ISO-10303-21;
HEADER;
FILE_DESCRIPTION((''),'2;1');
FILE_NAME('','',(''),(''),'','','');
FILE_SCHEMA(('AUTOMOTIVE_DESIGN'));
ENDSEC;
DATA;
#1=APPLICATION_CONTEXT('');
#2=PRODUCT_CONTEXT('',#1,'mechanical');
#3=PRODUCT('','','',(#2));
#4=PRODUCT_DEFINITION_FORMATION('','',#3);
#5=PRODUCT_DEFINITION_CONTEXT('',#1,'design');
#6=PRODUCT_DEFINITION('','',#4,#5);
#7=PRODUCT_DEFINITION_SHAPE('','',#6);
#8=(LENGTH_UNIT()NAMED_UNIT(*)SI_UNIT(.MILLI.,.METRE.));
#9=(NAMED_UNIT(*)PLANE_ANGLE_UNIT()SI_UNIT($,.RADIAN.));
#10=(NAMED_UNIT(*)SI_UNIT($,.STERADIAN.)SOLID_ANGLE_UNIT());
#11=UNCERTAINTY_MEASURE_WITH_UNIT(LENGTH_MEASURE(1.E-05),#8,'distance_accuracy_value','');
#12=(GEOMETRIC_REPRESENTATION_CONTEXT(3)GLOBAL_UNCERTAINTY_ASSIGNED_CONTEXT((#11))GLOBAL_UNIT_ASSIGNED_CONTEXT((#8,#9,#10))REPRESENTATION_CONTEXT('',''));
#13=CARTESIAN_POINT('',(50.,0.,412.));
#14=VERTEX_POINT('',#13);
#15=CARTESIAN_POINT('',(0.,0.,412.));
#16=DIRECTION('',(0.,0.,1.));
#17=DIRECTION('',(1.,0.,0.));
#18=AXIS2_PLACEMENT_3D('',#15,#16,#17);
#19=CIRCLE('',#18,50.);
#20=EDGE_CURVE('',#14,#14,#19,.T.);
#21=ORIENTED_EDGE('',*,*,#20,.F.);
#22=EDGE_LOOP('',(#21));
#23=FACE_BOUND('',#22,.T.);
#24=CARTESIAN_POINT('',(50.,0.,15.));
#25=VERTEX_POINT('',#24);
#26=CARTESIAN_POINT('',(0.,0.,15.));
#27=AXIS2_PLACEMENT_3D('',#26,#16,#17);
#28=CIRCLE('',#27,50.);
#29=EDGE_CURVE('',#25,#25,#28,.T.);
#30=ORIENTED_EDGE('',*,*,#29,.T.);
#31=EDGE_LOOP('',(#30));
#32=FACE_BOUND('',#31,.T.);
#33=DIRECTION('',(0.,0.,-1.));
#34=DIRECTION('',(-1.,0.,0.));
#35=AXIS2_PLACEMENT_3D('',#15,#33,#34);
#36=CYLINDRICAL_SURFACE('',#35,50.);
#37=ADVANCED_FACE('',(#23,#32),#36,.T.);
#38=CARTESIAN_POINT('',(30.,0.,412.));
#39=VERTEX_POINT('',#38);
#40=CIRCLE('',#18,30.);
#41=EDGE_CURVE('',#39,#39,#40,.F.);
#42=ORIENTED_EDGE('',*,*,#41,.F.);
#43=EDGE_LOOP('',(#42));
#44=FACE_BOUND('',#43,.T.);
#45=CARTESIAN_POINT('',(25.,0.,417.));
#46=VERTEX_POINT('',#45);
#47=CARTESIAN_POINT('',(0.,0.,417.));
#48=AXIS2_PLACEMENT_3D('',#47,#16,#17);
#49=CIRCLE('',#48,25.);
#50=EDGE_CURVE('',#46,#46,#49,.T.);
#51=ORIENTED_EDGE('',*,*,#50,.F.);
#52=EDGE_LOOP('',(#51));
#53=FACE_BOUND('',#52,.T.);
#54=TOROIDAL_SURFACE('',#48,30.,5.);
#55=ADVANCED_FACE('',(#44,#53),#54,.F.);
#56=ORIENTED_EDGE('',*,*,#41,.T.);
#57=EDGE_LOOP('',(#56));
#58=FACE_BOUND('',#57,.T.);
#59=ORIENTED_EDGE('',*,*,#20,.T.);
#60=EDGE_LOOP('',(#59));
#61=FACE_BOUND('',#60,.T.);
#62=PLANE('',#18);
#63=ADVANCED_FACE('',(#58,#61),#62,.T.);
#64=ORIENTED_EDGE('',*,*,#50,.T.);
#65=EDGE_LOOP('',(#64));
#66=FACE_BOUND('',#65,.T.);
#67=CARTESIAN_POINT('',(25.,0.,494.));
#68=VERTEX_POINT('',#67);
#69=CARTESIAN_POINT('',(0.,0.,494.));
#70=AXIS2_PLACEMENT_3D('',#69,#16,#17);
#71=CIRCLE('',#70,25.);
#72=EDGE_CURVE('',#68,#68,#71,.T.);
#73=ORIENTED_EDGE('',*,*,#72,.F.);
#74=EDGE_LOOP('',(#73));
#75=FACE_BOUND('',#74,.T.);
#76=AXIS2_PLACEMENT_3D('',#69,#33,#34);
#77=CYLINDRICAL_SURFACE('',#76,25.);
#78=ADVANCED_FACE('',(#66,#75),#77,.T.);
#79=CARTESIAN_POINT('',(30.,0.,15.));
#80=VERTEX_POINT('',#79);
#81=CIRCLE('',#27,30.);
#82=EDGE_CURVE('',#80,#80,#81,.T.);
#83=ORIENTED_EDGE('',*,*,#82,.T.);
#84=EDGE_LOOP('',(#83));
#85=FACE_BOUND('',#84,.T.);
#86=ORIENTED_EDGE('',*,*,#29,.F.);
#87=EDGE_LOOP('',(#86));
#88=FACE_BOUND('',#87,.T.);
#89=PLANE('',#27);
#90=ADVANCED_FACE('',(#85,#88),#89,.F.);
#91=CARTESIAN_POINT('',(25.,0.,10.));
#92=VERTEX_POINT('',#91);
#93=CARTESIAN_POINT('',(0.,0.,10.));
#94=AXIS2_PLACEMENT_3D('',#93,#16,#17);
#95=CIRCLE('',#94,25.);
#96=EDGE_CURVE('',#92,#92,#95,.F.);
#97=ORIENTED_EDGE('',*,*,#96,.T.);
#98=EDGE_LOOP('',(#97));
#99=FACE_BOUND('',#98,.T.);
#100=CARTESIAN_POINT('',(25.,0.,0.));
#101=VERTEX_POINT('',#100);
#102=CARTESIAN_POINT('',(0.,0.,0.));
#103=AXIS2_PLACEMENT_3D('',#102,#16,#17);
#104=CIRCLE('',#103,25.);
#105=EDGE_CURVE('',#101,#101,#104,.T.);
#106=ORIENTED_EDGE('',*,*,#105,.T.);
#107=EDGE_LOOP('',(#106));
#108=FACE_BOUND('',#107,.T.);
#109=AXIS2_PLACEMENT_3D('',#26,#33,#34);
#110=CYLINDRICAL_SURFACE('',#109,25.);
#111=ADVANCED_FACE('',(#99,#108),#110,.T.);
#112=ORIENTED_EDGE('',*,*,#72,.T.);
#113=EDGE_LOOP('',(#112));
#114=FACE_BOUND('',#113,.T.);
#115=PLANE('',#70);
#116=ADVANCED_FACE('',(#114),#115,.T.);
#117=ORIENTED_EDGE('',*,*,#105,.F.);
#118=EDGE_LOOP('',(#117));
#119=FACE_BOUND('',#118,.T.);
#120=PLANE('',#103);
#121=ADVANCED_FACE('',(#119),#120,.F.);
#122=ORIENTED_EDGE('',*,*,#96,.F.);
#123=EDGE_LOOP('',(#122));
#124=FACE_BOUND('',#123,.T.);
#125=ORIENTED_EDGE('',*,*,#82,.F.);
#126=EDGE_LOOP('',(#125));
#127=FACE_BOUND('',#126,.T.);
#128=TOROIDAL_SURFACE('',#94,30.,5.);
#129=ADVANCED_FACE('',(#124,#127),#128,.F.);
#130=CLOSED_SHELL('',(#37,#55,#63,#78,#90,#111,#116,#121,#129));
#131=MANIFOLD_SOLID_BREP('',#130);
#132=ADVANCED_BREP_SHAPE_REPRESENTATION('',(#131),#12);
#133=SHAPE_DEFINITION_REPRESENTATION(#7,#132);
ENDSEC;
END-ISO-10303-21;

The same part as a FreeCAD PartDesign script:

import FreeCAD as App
import Part
import Sketcher
from FreeCAD import Vector


def edges_at(feature, points):
    """Names of the edges that pass closest to the given points."""
    edges = feature.Shape.Edges
    near = lambda p: min(range(len(edges)), key=lambda i: edges[i].distToShape(Part.Vertex(*p))[0])
    return sorted({f"Edge{near(p) + 1}" for p in points})

doc = App.newDocument("Part")
params = doc.addObject("Spreadsheet::Sheet", "Params")
for row, (alias, value) in enumerate([
    ("sketch1_diameter", "50 mm"),
    ("pad1_length", "15 mm"),
    ("sketch2_diameter", "100 mm"),
    ("pad2_length", "397 mm"),
    ("sketch3_diameter", "50 mm"),
    ("pad3_length", "82 mm"),
    ("fillet_radius", "5 mm"),
], start=1):
    params.set(f"A{row}", alias)
    params.set(f"B{row}", "=" + value)
    params.setAlias(f"B{row}", alias)

body = doc.addObject("PartDesign::Body", "Body")

# Sketch on XY plane
sketch1 = doc.addObject("Sketcher::SketchObject", "Sketch")
body.addObject(sketch1)
sketch1.AttachmentSupport = (doc.XY_Plane, [""])
sketch1.MapMode = "FlatFace"
sketch1.addGeometry(Part.Circle(Vector(0, 0, 0), Vector(0, 0, 1), 25), False)
sketch1.addConstraint(Sketcher.Constraint("Coincident", 0, 3, -1, 1))
sketch1.addConstraint(Sketcher.Constraint("Diameter", 0, 50.0))
sketch1.setExpression("Constraints[1]", "Params.sketch1_diameter")
pad1 = doc.addObject("PartDesign::Pad", "Pad")
body.addObject(pad1)
pad1.Profile = sketch1
pad1.setExpression("Length", "Params.pad1_length")

# Sketch on XY plane
sketch2 = doc.addObject("Sketcher::SketchObject", "Sketch001")
body.addObject(sketch2)
sketch2.AttachmentSupport = (doc.XY_Plane, [""])
sketch2.MapMode = "FlatFace"
sketch2.AttachmentOffset = App.Placement(Vector(0, 0, 15), App.Rotation())
sketch2.addGeometry(Part.Circle(Vector(0, 0, 0), Vector(0, 0, 1), 50), False)
sketch2.addConstraint(Sketcher.Constraint("Coincident", 0, 3, -1, 1))
sketch2.addConstraint(Sketcher.Constraint("Diameter", 0, 100.0))
sketch2.setExpression("Constraints[1]", "Params.sketch2_diameter")
pad2 = doc.addObject("PartDesign::Pad", "Pad001")
body.addObject(pad2)
pad2.Profile = sketch2
pad2.setExpression("Length", "Params.pad2_length")

# Sketch on XY plane
sketch3 = doc.addObject("Sketcher::SketchObject", "Sketch002")
body.addObject(sketch3)
sketch3.AttachmentSupport = (doc.XY_Plane, [""])
sketch3.MapMode = "FlatFace"
sketch3.AttachmentOffset = App.Placement(Vector(0, 0, 412), App.Rotation())
sketch3.addGeometry(Part.Circle(Vector(0, 0, 0), Vector(0, 0, 1), 25), False)
sketch3.addConstraint(Sketcher.Constraint("Coincident", 0, 3, -1, 1))
sketch3.addConstraint(Sketcher.Constraint("Diameter", 0, 50.0))
sketch3.setExpression("Constraints[1]", "Params.sketch3_diameter")
pad3 = doc.addObject("PartDesign::Pad", "Pad002")
body.addObject(pad3)
pad3.Profile = sketch3
pad3.setExpression("Length", "Params.pad3_length")
doc.recompute()

fillet = doc.addObject("PartDesign::Fillet", "Fillet")
body.addObject(fillet)
fillet.Base = (pad3, edges_at(pad3, [(-25, 0, 15), (-25, 0, 412)]))
fillet.setExpression("Radius", "Params.fillet_radius")

doc.recompute()
